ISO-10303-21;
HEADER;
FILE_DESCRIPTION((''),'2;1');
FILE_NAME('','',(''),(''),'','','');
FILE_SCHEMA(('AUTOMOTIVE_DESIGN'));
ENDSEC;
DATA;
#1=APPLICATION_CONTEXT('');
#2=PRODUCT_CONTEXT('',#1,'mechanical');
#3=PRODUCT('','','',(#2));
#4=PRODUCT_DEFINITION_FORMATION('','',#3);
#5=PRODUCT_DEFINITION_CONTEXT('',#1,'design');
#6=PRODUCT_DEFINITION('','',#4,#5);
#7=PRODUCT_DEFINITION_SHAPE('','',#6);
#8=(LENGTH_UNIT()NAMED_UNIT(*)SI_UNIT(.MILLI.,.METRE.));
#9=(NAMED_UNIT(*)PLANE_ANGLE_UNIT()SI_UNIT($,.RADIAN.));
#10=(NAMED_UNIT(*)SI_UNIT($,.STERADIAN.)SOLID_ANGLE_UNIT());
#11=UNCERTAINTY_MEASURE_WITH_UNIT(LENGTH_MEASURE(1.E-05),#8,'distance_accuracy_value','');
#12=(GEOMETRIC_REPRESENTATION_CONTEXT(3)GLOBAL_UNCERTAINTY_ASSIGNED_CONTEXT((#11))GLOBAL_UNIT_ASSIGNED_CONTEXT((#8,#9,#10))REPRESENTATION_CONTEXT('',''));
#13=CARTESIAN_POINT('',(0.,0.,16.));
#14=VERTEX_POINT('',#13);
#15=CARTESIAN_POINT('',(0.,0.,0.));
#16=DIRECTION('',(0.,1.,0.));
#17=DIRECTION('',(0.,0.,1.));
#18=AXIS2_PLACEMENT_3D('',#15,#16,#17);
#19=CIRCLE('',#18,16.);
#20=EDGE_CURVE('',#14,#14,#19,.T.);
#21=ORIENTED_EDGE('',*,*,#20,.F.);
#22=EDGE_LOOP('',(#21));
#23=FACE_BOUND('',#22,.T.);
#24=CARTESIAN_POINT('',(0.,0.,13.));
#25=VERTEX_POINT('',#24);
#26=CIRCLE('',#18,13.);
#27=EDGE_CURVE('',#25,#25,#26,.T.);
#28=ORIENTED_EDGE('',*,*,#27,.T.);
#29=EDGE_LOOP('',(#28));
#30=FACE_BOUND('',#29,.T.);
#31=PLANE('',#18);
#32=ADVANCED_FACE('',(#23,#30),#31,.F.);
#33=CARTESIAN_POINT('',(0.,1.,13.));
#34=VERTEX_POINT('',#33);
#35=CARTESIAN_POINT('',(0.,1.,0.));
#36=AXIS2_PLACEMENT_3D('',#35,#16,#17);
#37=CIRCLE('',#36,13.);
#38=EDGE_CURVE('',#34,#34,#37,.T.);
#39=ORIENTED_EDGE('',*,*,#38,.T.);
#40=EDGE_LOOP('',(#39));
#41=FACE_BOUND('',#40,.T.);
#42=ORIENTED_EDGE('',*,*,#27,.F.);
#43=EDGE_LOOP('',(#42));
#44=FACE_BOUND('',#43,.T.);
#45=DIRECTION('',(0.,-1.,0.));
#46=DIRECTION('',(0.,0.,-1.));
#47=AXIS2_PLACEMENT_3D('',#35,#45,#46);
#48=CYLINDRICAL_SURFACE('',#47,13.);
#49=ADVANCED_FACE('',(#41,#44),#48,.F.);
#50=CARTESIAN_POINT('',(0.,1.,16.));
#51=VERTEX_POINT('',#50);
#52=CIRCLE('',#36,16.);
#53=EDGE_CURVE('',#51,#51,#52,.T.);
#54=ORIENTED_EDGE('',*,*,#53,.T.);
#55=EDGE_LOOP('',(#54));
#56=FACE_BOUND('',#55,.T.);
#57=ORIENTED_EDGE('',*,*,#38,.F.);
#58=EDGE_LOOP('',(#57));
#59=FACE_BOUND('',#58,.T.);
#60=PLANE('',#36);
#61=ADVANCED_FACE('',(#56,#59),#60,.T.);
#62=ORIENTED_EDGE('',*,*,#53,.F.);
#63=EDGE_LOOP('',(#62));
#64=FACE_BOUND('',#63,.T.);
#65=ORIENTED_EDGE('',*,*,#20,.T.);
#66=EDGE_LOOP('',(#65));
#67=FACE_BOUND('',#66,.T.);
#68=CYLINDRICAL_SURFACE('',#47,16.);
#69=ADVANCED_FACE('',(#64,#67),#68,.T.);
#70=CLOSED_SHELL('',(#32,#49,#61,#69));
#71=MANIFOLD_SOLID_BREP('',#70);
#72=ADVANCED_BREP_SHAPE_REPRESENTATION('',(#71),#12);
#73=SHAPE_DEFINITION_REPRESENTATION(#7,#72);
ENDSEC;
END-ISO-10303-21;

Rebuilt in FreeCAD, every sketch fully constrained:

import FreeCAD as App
import Part
import Sketcher

V = App.Vector
Q = App.Units.Quantity

doc = App.newDocument("Part")
body = doc.addObject("PartDesign::Body", "Body")

# Sketch on XZ plane
sketch1 = doc.addObject("Sketcher::SketchObject", "Sketch")
body.addObject(sketch1)
sketch1.AttachmentSupport = (doc.XZ_Plane, [""])
sketch1.MapMode = "FlatFace"
sketch1.addGeometry([
    Part.Circle(V(0, 0, 0), V(0, 0, 1), 16),
    Part.Circle(V(0, 0, 0), V(0, 0, 1), 13),
], False)
sketch1.addConstraint([
    Sketcher.Constraint("Coincident", 0, 3, -1, 1),
    Sketcher.Constraint("Coincident", 1, 3, -1, 1),
    Sketcher.Constraint("Diameter", 0, Q("32 mm")),
    Sketcher.Constraint("Diameter", 1, Q("26 mm")),
])
pad1 = doc.addObject("PartDesign::Pad", "Pad")
body.addObject(pad1)
pad1.Profile = sketch1
pad1.Length = 1
pad1.Reversed = True

doc.recompute()
